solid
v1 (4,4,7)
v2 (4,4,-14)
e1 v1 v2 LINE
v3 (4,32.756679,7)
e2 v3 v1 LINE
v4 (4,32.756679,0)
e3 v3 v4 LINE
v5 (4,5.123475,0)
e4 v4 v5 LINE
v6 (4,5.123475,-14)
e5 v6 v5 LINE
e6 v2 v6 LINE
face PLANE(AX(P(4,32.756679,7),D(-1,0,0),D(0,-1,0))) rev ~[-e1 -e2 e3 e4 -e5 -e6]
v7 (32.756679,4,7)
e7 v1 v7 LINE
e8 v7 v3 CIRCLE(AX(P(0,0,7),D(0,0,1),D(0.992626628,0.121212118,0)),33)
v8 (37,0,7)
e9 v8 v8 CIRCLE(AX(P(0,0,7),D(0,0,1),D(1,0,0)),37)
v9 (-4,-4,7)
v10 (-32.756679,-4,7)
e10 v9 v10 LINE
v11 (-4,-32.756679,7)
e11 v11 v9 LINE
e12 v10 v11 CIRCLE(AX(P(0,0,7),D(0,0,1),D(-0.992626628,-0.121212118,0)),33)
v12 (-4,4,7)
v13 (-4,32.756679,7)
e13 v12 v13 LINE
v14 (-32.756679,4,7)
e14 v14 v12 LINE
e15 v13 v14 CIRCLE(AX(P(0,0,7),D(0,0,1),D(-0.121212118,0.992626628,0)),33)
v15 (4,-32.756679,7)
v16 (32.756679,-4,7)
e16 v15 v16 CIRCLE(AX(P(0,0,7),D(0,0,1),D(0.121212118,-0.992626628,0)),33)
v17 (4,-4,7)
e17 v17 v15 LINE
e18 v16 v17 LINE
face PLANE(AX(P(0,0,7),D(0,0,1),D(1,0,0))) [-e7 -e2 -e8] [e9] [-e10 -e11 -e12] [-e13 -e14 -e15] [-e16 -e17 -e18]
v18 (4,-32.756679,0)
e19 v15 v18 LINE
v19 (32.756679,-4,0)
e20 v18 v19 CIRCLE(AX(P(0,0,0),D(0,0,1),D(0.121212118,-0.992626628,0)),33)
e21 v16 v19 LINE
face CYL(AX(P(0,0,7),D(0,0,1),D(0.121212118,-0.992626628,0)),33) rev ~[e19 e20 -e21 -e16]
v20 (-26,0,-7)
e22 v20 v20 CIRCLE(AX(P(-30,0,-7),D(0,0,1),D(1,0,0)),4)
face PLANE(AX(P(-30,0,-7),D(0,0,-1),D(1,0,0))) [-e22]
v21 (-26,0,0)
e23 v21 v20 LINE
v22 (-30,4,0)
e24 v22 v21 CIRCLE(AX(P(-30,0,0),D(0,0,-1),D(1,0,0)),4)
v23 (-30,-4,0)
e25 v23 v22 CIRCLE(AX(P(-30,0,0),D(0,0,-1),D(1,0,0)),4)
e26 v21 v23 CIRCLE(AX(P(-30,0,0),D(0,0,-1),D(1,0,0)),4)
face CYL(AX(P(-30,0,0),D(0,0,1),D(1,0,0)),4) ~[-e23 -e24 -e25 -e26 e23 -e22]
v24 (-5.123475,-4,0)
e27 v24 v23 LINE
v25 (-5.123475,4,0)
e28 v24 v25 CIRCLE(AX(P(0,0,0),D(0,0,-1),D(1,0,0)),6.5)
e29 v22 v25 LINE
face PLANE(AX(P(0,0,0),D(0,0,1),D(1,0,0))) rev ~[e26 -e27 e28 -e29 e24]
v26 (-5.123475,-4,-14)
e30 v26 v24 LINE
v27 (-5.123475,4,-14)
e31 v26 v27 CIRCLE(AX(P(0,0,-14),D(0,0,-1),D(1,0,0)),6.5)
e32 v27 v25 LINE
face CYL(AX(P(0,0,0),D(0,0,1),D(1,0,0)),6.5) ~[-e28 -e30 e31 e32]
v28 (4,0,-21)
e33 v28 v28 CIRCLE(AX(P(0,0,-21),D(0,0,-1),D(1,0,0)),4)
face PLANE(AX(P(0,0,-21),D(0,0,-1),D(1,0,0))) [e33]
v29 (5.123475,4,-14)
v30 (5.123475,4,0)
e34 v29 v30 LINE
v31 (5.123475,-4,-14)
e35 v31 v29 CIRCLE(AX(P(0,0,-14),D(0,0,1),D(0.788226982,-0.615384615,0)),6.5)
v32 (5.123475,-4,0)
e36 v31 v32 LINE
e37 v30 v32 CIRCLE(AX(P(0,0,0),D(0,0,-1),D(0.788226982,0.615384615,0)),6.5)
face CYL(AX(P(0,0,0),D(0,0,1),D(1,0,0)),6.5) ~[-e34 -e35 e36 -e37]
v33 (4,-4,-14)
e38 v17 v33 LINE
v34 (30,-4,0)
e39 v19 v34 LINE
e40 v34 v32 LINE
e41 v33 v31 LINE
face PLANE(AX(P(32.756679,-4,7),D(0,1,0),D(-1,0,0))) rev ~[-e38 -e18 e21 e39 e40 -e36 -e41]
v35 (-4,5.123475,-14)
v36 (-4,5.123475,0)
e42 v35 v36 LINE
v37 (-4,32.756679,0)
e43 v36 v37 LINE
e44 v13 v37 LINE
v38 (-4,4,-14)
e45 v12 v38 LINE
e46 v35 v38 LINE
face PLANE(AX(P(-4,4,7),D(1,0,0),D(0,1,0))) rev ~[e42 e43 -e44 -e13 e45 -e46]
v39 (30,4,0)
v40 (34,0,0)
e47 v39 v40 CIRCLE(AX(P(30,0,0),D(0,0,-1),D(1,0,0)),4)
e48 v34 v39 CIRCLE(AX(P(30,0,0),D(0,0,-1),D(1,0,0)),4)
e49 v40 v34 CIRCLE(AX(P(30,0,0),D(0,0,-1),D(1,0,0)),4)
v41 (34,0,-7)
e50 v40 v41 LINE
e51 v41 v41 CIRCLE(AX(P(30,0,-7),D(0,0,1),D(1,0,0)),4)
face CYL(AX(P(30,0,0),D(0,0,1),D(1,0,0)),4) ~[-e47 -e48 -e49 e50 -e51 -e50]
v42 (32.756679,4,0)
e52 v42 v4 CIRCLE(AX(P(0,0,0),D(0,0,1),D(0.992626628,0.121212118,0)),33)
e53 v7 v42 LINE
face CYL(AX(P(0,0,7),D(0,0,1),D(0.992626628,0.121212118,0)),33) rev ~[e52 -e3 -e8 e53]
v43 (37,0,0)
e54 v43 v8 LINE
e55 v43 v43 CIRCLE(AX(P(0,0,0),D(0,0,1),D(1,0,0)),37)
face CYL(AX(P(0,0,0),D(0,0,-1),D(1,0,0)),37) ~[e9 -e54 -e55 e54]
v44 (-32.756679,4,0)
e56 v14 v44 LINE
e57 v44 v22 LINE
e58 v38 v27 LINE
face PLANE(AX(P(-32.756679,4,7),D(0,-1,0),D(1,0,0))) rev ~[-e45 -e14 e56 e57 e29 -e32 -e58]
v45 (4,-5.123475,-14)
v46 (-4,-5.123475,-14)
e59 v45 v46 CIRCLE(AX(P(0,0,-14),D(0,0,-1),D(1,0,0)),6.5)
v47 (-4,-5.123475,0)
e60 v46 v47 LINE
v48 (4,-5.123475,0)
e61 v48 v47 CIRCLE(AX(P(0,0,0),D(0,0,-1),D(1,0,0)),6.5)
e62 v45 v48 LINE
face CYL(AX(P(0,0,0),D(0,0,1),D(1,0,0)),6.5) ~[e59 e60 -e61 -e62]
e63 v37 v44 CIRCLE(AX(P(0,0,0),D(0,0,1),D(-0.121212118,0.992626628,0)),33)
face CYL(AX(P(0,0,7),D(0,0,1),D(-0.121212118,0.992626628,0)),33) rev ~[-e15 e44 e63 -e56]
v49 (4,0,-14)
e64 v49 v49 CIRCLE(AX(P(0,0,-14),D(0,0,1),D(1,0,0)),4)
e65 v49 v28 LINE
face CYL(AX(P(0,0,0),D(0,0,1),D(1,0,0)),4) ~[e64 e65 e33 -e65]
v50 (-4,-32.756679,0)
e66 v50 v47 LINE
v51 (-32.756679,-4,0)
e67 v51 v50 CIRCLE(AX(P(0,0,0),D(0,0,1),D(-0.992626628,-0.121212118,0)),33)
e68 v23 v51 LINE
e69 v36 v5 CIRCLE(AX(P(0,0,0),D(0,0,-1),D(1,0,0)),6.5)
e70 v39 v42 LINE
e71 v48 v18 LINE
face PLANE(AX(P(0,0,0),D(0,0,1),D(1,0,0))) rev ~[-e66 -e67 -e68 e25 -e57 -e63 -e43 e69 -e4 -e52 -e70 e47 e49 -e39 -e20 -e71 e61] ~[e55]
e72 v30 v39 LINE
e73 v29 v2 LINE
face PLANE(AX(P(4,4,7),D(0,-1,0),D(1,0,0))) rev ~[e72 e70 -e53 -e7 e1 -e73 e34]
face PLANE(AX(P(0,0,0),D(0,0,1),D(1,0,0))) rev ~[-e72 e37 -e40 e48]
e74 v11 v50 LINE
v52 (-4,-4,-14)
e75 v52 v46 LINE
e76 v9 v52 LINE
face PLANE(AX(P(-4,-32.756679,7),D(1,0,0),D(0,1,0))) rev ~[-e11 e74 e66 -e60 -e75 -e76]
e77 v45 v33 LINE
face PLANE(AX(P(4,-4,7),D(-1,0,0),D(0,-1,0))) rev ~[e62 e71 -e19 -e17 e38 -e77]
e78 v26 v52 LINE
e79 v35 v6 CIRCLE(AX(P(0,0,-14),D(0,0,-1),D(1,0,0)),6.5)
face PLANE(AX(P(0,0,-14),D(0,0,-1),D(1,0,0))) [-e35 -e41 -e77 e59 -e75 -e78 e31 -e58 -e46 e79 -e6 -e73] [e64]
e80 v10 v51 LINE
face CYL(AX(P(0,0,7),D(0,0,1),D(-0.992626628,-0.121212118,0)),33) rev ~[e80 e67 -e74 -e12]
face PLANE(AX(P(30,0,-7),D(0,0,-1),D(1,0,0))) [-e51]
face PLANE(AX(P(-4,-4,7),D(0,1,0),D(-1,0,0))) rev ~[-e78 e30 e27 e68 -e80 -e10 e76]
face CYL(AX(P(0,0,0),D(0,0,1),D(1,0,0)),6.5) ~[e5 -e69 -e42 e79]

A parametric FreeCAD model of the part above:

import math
import FreeCAD as App
import Part
import Sketcher

V = App.Vector

doc = App.newDocument("Part")
body = doc.addObject("PartDesign::Body", "Body")

# Sketch on XY plane
sketch1 = doc.addObject("Sketcher::SketchObject", "Sketch")
body.addObject(sketch1)
sketch1.AttachmentSupport = (doc.XY_Plane, [""])
sketch1.MapMode = "FlatFace"
sketch1.addGeometry(Part.Circle(V(0, 0, 0), V(0, 0, 1), 37), False)
sketch1.addConstraint([
    Sketcher.Constraint("Coincident", 0, 3, -1, 1),
    Sketcher.Constraint("Diameter", 0, 74.0),
])
pad1 = doc.addObject("PartDesign::Pad", "Pad")
body.addObject(pad1)
pad1.Profile = sketch1
pad1.Length = 7

# Sketch on XY plane
sketch2 = doc.addObject("Sketcher::SketchObject", "Sketch001")
body.addObject(sketch2)
sketch2.AttachmentSupport = (doc.XY_Plane, [""])
sketch2.MapMode = "FlatFace"
sketch2.addGeometry(Part.Circle(V(0, 0, 0), V(0, 0, 1), 4), False)
sketch2.addConstraint([
    Sketcher.Constraint("Coincident", 0, 3, -1, 1),
    Sketcher.Constraint("Diameter", 0, 8.0),
])
pad2 = doc.addObject("PartDesign::Pad", "Pad001")
body.addObject(pad2)
pad2.Profile = sketch2
pad2.Length = 21
pad2.Reversed = True

# Sketch on XY plane
sketch3 = doc.addObject("Sketcher::SketchObject", "Sketch002")
body.addObject(sketch3)
sketch3.AttachmentSupport = (doc.XY_Plane, [""])
sketch3.MapMode = "FlatFace"
sketch3.addGeometry([
    Part.Circle(V(-30, 0, 0), V(0, 0, 1), 4),
    Part.Circle(V(30, 0, 0), V(0, 0, 1), 4),
], False)
sketch3.addConstraint([
    Sketcher.Constraint("Equal", 0, 1),
    Sketcher.Constraint("Symmetric", 0, 3, 1, 3, -1, 1),
    Sketcher.Constraint("PointOnObject", 0, 3, -1),
    Sketcher.Constraint("Diameter", 0, 8.0),
    Sketcher.Constraint("DistanceX", 0, 3, -1, 1, 30.0),
])
pad3 = doc.addObject("PartDesign::Pad", "Pad002")
body.addObject(pad3)
pad3.Profile = sketch3
pad3.Length = 7
pad3.Reversed = True

# Sketch on XY plane
sketch4 = doc.addObject("Sketcher::SketchObject", "Sketch003")
body.addObject(sketch4)
sketch4.AttachmentSupport = (doc.XY_Plane, [""])
sketch4.MapMode = "FlatFace"
sketch4.addGeometry(Part.Circle(V(0, 0, 0), V(0, 0, 1), 6.5), False)
sketch4.addConstraint([
    Sketcher.Constraint("Coincident", 0, 3, -1, 1),
    Sketcher.Constraint("Diameter", 0, 13.0),
])
pad4 = doc.addObject("PartDesign::Pad", "Pad003")
body.addObject(pad4)
pad4.Profile = sketch4
pad4.Length = 14
pad4.Reversed = True

# Sketch on XY plane
sketch5 = doc.addObject("Sketcher::SketchObject", "Sketch004")
body.addObject(sketch5)
sketch5.AttachmentSupport = (doc.XY_Plane, [""])
sketch5.MapMode = "FlatFace"
sketch5.AttachmentOffset = App.Placement(V(0, 0, 7), App.Rotation())
sketch5.addGeometry([
    Part.LineSegment(V(-4, -4, 0), V(-32.756679, -4, 0)),  # 0
    Part.ArcOfCircle(Part.Circle(V(0, 0, 0), V(0, 0, 1), 33), math.radians(-173.037937), math.radians(-96.962063)),  # 1
    Part.LineSegment(V(-4, -32.756679, 0), V(-4, -4, 0)),  # 2
    Part.LineSegment(V(-32.756679, 4, 0), V(-4, 4, 0)),  # 3
    Part.LineSegment(V(-4, 4, 0), V(-4, 32.756679, 0)),  # 4
    Part.ArcOfCircle(Part.Circle(V(0, 0, 0), V(0, 0, 1), 33), math.radians(96.962063), math.radians(173.037937)),  # 5
    Part.LineSegment(V(4, 4, 0), V(32.756679, 4, 0)),  # 6
    Part.ArcOfCircle(Part.Circle(V(0, 0, 0), V(0, 0, 1), 33), math.radians(6.962063), math.radians(83.037937)),  # 7
    Part.LineSegment(V(4, 32.756679, 0), V(4, 4, 0)),  # 8
    Part.LineSegment(V(32.756679, -4, 0), V(4, -4, 0)),  # 9
    Part.LineSegment(V(4, -4, 0), V(4, -32.756679, 0)),  # 10
    Part.ArcOfCircle(Part.Circle(V(0, 0, 0), V(0, 0, 1), 33), math.radians(-83.037937), math.radians(-6.962063)),  # 11
], False)
sketch5.addConstraint([
    Sketcher.Constraint("Coincident", 0, 2, 1, 1),
    Sketcher.Constraint("Coincident", 1, 2, 2, 1),
    Sketcher.Constraint("Coincident", 2, 2, 0, 1),
    Sketcher.Constraint("Coincident", 3, 2, 4, 1),
    Sketcher.Constraint("Coincident", 4, 2, 5, 1),
    Sketcher.Constraint("Coincident", 5, 2, 3, 1),
    Sketcher.Constraint("Coincident", 6, 2, 7, 1),
    Sketcher.Constraint("Coincident", 7, 2, 8, 1),
    Sketcher.Constraint("Coincident", 8, 2, 6, 1),
    Sketcher.Constraint("Coincident", 9, 2, 10, 1),
    Sketcher.Constraint("Coincident", 10, 2, 11, 1),
    Sketcher.Constraint("Coincident", 11, 2, 9, 1),
    Sketcher.Constraint("Horizontal", 0),
    Sketcher.Constraint("Vertical", 2),
    Sketcher.Constraint("Horizontal", 3),
    Sketcher.Constraint("Vertical", 4),
    Sketcher.Constraint("Horizontal", 6),
    Sketcher.Constraint("Vertical", 8),
    Sketcher.Constraint("Horizontal", 9),
    Sketcher.Constraint("Vertical", 10),
    Sketcher.Constraint("Coincident", 1, 3, -1, 1),
    Sketcher.Constraint("Coincident", 5, 3, -1, 1),
    Sketcher.Constraint("Coincident", 7, 3, -1, 1),
    Sketcher.Constraint("Coincident", 11, 3, -1, 1),
    Sketcher.Constraint("Equal", 1, 5),
    Sketcher.Constraint("Equal", 5, 7),
    Sketcher.Constraint("Equal", 7, 11),
    Sketcher.Constraint("Symmetric", 2, 2, 8, 2, -1, 1),
    Sketcher.Constraint("Symmetric", 3, 2, 9, 2, -1, 1),
    Sketcher.Constraint("Symmetric", 3, 2, 8, 2, -2),
    Sketcher.Constraint("Equal", 9, 2),
    Sketcher.Constraint("Radius", 1, 33.0),
    Sketcher.Constraint("DistanceY", 0, 2, -1, 1, 4.0),
])
pocket1 = doc.addObject("PartDesign::Pocket", "Pocket")
body.addObject(pocket1)
pocket1.Profile = sketch5
pocket1.Type = "ThroughAll"

doc.recompute()
